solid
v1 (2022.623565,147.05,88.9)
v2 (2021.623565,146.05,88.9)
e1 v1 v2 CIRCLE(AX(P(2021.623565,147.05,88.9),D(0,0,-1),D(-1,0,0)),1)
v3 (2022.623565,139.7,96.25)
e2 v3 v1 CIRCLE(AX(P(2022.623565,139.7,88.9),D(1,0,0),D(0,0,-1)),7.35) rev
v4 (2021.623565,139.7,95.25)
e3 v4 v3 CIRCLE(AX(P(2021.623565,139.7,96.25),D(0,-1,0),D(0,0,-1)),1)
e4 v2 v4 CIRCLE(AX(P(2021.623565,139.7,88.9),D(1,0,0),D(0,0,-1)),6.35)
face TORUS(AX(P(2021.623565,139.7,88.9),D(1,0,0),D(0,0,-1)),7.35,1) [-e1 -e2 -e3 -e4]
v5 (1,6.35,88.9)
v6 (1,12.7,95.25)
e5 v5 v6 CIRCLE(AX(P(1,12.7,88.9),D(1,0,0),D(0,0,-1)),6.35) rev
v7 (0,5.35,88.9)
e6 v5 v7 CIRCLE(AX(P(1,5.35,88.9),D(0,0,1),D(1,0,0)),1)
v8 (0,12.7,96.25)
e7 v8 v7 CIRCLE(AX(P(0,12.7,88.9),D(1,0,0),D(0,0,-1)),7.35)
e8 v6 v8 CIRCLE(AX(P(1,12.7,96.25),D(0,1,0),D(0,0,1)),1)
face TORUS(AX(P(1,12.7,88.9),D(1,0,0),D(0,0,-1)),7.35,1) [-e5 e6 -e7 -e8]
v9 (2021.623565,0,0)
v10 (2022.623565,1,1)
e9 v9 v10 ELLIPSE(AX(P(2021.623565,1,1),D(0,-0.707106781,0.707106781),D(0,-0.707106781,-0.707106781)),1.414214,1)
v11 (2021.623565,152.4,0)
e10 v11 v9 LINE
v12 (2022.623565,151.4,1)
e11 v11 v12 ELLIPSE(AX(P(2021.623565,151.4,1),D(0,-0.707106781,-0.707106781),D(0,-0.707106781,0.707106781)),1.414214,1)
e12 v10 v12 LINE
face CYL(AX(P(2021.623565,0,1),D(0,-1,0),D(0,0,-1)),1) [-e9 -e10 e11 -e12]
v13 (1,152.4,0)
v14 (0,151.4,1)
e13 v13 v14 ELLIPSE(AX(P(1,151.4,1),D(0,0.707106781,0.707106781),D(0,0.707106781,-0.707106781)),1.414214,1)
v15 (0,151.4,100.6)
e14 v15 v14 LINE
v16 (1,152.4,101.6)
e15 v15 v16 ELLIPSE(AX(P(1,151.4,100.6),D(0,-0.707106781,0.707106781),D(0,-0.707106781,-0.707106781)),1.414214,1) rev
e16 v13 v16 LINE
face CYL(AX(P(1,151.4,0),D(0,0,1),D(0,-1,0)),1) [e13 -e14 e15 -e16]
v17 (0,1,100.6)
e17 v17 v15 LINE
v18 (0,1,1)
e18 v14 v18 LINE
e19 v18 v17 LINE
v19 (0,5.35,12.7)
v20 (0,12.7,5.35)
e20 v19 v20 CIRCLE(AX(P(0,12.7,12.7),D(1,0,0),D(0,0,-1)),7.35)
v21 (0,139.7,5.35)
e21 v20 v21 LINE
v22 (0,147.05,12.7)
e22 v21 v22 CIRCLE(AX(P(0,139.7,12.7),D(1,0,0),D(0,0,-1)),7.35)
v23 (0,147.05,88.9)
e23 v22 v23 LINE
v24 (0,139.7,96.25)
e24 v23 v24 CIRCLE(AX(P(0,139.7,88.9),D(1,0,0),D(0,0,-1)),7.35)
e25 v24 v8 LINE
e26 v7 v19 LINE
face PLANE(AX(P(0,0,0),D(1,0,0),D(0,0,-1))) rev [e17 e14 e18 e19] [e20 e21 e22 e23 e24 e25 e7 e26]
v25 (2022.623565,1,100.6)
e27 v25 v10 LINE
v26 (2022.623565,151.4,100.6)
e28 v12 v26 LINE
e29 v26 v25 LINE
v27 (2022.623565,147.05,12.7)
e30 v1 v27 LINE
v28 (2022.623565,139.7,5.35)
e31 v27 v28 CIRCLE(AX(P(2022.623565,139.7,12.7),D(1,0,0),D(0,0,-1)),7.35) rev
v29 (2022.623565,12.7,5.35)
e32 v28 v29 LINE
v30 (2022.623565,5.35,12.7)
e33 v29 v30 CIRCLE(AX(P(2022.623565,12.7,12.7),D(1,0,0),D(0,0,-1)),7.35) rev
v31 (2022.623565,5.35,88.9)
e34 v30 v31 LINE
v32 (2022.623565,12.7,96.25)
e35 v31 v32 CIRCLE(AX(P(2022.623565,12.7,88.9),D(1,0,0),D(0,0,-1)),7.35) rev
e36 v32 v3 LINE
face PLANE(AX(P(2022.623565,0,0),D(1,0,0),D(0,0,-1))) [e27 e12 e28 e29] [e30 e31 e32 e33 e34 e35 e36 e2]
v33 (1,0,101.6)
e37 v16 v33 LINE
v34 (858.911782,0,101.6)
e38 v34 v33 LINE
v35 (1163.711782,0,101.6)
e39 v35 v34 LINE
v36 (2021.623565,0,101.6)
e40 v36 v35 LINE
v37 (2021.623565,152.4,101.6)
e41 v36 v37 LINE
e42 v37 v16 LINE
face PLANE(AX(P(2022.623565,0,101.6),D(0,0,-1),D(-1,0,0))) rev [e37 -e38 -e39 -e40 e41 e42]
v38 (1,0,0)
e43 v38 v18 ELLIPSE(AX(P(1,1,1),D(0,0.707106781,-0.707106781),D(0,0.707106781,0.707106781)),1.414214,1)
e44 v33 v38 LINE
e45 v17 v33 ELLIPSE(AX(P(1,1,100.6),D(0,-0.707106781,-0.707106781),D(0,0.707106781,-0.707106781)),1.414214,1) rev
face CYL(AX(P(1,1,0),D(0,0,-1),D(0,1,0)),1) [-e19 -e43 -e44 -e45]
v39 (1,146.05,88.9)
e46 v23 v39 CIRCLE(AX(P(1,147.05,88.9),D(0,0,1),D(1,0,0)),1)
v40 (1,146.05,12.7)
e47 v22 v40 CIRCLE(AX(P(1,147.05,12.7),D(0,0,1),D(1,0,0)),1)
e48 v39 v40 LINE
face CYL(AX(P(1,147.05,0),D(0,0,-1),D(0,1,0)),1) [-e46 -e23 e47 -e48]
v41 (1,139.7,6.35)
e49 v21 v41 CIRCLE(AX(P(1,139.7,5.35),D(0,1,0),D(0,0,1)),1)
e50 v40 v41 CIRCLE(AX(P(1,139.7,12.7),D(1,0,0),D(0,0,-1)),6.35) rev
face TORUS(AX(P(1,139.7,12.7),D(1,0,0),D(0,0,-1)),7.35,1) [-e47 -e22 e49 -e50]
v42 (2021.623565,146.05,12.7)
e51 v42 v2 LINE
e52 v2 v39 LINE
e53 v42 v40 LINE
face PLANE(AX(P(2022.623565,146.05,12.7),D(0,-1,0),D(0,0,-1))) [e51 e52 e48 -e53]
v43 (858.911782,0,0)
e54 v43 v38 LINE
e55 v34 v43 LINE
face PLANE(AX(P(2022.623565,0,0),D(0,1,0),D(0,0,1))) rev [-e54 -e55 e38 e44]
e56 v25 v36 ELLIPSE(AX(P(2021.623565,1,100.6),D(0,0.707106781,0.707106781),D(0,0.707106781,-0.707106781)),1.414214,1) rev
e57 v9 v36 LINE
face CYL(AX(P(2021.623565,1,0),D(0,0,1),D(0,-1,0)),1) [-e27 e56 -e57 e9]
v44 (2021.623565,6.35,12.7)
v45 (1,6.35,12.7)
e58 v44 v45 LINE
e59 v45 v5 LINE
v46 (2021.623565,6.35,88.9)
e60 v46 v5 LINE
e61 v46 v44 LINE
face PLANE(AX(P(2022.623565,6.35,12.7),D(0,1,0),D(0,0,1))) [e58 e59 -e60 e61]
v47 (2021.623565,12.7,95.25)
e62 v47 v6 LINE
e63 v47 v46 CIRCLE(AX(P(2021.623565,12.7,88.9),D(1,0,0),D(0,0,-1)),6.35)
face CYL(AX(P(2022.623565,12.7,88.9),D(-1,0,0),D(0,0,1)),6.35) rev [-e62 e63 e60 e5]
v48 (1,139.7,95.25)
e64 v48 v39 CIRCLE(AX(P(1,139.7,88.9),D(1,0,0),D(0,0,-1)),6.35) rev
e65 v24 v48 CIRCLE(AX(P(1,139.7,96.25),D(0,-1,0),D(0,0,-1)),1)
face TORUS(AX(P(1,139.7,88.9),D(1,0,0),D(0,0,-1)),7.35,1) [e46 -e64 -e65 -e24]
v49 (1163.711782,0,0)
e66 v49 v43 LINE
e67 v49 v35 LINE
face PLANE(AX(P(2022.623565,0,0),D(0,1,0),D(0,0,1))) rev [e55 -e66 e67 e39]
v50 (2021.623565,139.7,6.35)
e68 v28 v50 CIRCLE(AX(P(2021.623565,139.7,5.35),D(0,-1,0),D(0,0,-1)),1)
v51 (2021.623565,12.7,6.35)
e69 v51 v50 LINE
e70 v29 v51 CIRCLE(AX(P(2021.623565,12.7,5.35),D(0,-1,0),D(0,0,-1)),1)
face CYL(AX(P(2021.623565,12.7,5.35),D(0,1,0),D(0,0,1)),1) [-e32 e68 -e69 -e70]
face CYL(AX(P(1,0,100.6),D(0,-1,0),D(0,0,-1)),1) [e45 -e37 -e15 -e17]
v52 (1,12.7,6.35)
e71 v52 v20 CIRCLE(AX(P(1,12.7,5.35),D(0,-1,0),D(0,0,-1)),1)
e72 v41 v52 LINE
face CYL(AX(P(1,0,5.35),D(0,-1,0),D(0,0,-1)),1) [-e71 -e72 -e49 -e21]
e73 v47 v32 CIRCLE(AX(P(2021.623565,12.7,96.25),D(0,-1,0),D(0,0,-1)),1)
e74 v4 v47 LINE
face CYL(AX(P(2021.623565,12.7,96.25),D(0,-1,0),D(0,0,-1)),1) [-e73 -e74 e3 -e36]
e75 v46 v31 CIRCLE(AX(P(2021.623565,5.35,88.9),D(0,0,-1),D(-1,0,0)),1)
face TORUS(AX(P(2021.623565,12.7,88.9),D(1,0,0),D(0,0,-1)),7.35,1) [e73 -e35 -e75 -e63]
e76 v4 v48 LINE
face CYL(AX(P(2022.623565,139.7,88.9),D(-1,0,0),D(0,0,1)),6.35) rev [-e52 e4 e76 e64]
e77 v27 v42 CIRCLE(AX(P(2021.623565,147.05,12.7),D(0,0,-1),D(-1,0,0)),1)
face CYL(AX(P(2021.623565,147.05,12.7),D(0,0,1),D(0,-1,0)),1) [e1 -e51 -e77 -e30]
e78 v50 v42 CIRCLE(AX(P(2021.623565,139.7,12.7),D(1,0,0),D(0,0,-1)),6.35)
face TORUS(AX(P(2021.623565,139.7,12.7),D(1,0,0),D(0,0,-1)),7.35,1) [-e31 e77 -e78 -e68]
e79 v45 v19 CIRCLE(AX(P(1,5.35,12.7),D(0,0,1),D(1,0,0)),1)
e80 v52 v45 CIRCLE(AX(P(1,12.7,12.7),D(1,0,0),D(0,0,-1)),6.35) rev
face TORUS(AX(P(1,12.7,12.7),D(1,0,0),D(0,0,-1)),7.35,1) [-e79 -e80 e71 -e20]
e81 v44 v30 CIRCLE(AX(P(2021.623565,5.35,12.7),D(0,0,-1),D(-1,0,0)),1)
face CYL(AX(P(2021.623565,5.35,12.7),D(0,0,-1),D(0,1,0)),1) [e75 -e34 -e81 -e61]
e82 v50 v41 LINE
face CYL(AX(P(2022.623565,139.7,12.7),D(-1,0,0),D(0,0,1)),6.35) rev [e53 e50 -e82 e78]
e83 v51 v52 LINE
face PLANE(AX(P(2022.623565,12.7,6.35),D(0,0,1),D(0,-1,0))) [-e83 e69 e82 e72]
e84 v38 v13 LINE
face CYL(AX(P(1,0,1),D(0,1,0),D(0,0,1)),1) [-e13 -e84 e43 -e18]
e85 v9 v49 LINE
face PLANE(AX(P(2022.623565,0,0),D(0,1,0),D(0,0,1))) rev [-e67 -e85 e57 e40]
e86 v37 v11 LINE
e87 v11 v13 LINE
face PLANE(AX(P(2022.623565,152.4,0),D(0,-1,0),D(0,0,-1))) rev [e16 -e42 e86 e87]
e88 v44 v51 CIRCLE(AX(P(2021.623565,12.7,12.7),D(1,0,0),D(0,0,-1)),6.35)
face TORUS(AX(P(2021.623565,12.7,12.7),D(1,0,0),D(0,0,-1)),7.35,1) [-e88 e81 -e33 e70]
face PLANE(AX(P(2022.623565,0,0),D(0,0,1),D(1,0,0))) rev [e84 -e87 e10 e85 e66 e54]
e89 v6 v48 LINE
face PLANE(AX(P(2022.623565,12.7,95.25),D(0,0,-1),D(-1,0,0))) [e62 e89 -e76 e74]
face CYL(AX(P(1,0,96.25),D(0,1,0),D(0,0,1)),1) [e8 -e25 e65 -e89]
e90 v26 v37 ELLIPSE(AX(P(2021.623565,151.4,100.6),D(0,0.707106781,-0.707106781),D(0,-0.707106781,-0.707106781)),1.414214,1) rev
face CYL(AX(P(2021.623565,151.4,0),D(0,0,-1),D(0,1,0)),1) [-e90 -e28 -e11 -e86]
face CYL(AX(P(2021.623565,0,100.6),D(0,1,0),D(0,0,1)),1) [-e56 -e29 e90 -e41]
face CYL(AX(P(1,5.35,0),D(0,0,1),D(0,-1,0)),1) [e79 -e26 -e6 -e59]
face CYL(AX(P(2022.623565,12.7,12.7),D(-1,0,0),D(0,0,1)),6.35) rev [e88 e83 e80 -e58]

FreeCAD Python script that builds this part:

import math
import FreeCAD as App
import Part
import Sketcher
from FreeCAD import Vector
Q = App.Units.Quantity


def edges_at(feature, points):
    """Names of the edges that pass closest to the given points."""
    edges = feature.Shape.Edges
    near = lambda p: min(range(len(edges)), key=lambda i: edges[i].distToShape(Part.Vertex(*p))[0])
    return sorted({f"Edge{near(p) + 1}" for p in points})

doc = App.newDocument("Part")
body = doc.addObject("PartDesign::Body", "Body")

sketch1 = doc.addObject("Sketcher::SketchObject", "Sketch")
body.addObject(sketch1)
sketch1.AttachmentSupport = (doc.YZ_Plane, [""])
sketch1.MapMode = "FlatFace"
sketch1.addGeometry(Part.LineSegment(Vector(152.4, 101.6, 0), Vector(0, 101.6, 0)), False)
sketch1.addGeometry(Part.LineSegment(Vector(0, 101.6, 0), Vector(0, 0, 0)), False)
sketch1.addGeometry(Part.LineSegment(Vector(0, 0, 0), Vector(152.4, 0, 0)), False)
sketch1.addGeometry(Part.LineSegment(Vector(152.4, 0, 0), Vector(152.4, 101.6, 0)), False)
sketch1.addGeometry(Part.ArcOfCircle(Part.Circle(Vector(12.7, 88.9, 0), Vector(0, 0, 1), 6.35), math.radians(90), math.radians(180)), False)
sketch1.addGeometry(Part.LineSegment(Vector(12.7, 95.25, 0), Vector(139.7, 95.25, 0)), False)
sketch1.addGeometry(Part.ArcOfCircle(Part.Circle(Vector(139.7, 88.9, 0), Vector(0, 0, 1), 6.35), math.radians(0), math.radians(90)), False)
sketch1.addGeometry(Part.LineSegment(Vector(146.05, 88.9, 0), Vector(146.05, 12.7, 0)), False)
sketch1.addGeometry(Part.ArcOfCircle(Part.Circle(Vector(139.7, 12.7, 0), Vector(0, 0, 1), 6.35), math.radians(-90), math.radians(0)), False)
sketch1.addGeometry(Part.LineSegment(Vector(139.7, 6.35, 0), Vector(12.7, 6.35, 0)), False)
sketch1.addGeometry(Part.ArcOfCircle(Part.Circle(Vector(12.7, 12.7, 0), Vector(0, 0, 1), 6.35), math.radians(180), math.radians(270)), False)
sketch1.addGeometry(Part.LineSegment(Vector(6.35, 12.7, 0), Vector(6.35, 88.9, 0)), False)
sketch1.addConstraint(Sketcher.Constraint("Coincident", 0, 2, 1, 1))
sketch1.addConstraint(Sketcher.Constraint("Coincident", 1, 2, 2, 1))
sketch1.addConstraint(Sketcher.Constraint("Coincident", 2, 2, 3, 1))
sketch1.addConstraint(Sketcher.Constraint("Coincident", 3, 2, 0, 1))
sketch1.addConstraint(Sketcher.Constraint("Tangent", 4, 1, 5, 1))
sketch1.addConstraint(Sketcher.Constraint("Tangent", 5, 2, 6, 2))
sketch1.addConstraint(Sketcher.Constraint("Tangent", 6, 1, 7, 1))
sketch1.addConstraint(Sketcher.Constraint("Tangent", 7, 2, 8, 2))
sketch1.addConstraint(Sketcher.Constraint("Tangent", 8, 1, 9, 1))
sketch1.addConstraint(Sketcher.Constraint("Tangent", 9, 2, 10, 2))
sketch1.addConstraint(Sketcher.Constraint("Tangent", 10, 1, 11, 1))
sketch1.addConstraint(Sketcher.Constraint("Tangent", 11, 2, 4, 2))
sketch1.addConstraint(Sketcher.Constraint("Horizontal", 0))
sketch1.addConstraint(Sketcher.Constraint("Vertical", 1))
sketch1.addConstraint(Sketcher.Constraint("Horizontal", 2))
sketch1.addConstraint(Sketcher.Constraint("Vertical", 3))
sketch1.addConstraint(Sketcher.Constraint("Horizontal", 5))
sketch1.addConstraint(Sketcher.Constraint("Vertical", 7))
sketch1.addConstraint(Sketcher.Constraint("Horizontal", 9))
sketch1.addConstraint(Sketcher.Constraint("Vertical", 11))
sketch1.addConstraint(Sketcher.Constraint("Coincident", 1, 2, -1, 1))
sketch1.addConstraint(Sketcher.Constraint("Equal", 4, 6))
sketch1.addConstraint(Sketcher.Constraint("Equal", 6, 8))
sketch1.addConstraint(Sketcher.Constraint("Equal", 8, 10))
sketch1.addConstraint(Sketcher.Constraint("DistanceX", 0, 2, 0, 1, Q("6 in")))
sketch1.addConstraint(Sketcher.Constraint("DistanceX", 5, 1, 5, 2, Q("5 in")))
sketch1.addConstraint(Sketcher.Constraint("DistanceY", 1, 2, 1, 1, Q("4 in")))
sketch1.addConstraint(Sketcher.Constraint("DistanceY", 7, 2, 7, 1, Q("3 in")))
sketch1.addConstraint(Sketcher.Constraint("Radius", 4, Q("0.25 in")))
sketch1.addConstraint(Sketcher.Constraint("DistanceX", -1, 1, 4, 3, Q("0.5 in")))
sketch1.addConstraint(Sketcher.Constraint("DistanceY", -1, 1, 4, 3, Q("3.5 in")))
pad1 = doc.addObject("PartDesign::Pad", "Pad")
body.addObject(pad1)
pad1.Profile = sketch1
pad1.Length = 2022.623565
doc.recompute()

fillet = doc.addObject("PartDesign::Fillet", "Fillet")
body.addObject(fillet)
fillet.Base = (pad1, edges_at(pad1, [
    (2022.624, 76.2, 101.6),
    (2022.624, 0, 50.8),
    (0, 8.21, 93.39),
    (0, 6.35, 50.8),
    (0, 8.21, 8.21),
    (0, 76.2, 6.35),
    (0, 144.19, 8.21),
    (0, 146.05, 50.8),
    (0, 144.19, 93.39),
    (0, 76.2, 95.25),
    (2022.624, 8.21, 93.39),
    (2022.624, 6.35, 50.8),
    (2022.624, 8.21, 8.21),
    (2022.624, 76.2, 6.35),
    (2022.624, 144.19, 8.21),
    (2022.624, 146.05, 50.8),
    (2022.624, 144.19, 93.39),
    (2022.624, 76.2, 95.25),
    (2022.624, 76.2, 0),
    (0, 0, 50.8),
    (0, 76.2, 101.6),
    (0, 152.4, 50.8),
    (0, 76.2, 0),
    (2022.624, 152.4, 50.8),
]))
fillet.Radius = 1

doc.recompute()
